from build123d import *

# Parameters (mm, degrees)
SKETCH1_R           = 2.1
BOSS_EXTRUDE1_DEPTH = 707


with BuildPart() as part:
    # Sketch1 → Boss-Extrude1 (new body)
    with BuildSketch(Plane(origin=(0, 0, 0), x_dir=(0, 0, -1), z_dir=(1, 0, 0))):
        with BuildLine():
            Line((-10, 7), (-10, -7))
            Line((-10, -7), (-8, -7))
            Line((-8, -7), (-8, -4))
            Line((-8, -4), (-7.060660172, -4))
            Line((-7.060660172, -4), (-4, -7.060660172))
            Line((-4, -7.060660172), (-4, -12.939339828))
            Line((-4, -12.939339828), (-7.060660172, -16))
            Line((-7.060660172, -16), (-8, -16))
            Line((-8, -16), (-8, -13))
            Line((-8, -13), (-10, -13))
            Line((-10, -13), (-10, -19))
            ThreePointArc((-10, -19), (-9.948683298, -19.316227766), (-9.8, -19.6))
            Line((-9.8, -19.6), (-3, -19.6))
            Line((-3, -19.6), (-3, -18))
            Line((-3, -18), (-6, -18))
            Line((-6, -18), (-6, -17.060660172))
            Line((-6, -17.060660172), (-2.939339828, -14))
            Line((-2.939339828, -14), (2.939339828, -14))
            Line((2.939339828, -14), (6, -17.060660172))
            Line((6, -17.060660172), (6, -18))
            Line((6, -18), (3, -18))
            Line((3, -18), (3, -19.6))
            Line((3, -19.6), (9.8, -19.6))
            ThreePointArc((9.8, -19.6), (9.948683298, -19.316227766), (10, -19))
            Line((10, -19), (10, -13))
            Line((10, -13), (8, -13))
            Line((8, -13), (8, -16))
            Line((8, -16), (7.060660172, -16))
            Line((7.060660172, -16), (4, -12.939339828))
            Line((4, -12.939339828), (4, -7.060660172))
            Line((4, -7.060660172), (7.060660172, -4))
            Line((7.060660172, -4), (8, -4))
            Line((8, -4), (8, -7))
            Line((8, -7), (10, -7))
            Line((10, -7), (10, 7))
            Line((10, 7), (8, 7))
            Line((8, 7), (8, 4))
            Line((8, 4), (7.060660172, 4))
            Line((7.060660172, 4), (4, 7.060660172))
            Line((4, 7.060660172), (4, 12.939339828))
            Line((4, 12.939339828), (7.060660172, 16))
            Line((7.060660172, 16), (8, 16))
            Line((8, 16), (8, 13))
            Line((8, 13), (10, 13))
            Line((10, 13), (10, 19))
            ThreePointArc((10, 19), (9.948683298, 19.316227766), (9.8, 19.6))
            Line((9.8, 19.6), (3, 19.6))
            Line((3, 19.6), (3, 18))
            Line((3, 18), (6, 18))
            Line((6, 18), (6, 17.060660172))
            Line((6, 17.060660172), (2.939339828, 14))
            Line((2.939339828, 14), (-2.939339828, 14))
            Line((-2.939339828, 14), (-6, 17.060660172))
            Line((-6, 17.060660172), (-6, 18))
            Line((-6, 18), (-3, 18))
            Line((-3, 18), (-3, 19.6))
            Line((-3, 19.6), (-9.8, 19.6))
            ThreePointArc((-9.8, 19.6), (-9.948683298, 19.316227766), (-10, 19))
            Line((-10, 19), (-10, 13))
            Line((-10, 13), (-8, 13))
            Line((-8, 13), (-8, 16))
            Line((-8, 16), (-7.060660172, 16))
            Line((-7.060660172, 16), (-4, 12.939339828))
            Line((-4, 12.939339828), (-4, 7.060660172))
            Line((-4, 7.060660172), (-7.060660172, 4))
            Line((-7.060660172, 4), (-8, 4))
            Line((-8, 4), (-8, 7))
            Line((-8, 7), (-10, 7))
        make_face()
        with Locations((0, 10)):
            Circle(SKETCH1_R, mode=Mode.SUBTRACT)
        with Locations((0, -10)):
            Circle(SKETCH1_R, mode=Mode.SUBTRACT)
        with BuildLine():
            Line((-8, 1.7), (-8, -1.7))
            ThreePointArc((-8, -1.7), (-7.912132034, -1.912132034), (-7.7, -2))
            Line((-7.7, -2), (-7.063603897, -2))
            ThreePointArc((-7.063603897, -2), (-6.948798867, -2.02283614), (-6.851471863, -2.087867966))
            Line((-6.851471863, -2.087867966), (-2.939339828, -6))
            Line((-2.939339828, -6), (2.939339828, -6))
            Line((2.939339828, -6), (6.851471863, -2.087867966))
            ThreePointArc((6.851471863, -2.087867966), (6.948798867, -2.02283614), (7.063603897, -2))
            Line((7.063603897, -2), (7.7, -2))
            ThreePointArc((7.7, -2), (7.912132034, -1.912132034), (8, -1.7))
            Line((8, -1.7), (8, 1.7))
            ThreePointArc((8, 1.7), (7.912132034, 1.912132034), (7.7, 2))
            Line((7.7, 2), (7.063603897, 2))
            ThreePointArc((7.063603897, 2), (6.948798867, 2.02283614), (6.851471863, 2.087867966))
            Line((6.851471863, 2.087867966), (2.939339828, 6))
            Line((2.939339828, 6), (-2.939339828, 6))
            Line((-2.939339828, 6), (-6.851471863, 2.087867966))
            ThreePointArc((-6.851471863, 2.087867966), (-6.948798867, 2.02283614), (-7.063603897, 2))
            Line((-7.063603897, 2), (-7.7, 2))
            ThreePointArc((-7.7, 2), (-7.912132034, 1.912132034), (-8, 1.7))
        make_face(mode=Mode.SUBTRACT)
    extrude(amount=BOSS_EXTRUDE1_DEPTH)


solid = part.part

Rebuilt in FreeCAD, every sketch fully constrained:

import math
import FreeCAD as App
import Part
import Sketcher
Q = App.Units.Quantity

doc = App.newDocument("Part")
body = doc.addObject("PartDesign::Body", "Body")

# Sketch on YZ plane
sketch1 = body.newObject("Sketcher::SketchObject", "Sketch")
sketch1.AttachmentSupport = (doc.getObject("YZ_Plane"), [""])
sketch1.MapMode = "FlatFace"
sketch1.addGeometry([
    Part.LineSegment(App.Vector(7, 10, 0), App.Vector(-7, 10, 0)),  # 0
    Part.LineSegment(App.Vector(-7, 10, 0), App.Vector(-7, 8, 0)),  # 1
    Part.LineSegment(App.Vector(-7, 8, 0), App.Vector(-4, 8, 0)),  # 2
    Part.LineSegment(App.Vector(-4, 8, 0), App.Vector(-4, 7.06066, 0)),  # 3
    Part.LineSegment(App.Vector(-4, 7.06066, 0), App.Vector(-7.06066, 4, 0)),  # 4
    Part.LineSegment(App.Vector(-7.06066, 4, 0), App.Vector(-12.93934, 4, 0)),  # 5
    Part.LineSegment(App.Vector(-12.93934, 4, 0), App.Vector(-16, 7.06066, 0)),  # 6
    Part.LineSegment(App.Vector(-16, 7.06066, 0), App.Vector(-16, 8, 0)),  # 7
    Part.LineSegment(App.Vector(-16, 8, 0), App.Vector(-13, 8, 0)),  # 8
    Part.LineSegment(App.Vector(-13, 8, 0), App.Vector(-13, 10, 0)),  # 9
    Part.LineSegment(App.Vector(-13, 10, 0), App.Vector(-19, 10, 0)),  # 10
    Part.ArcOfCircle(Part.Circle(App.Vector(-19, 9, 0), App.Vector(0, 0, 1), 1), math.radians(90), math.radians(126.869898)),  # 11
    Part.LineSegment(App.Vector(-19.6, 9.8, 0), App.Vector(-19.6, 3, 0)),  # 12
    Part.LineSegment(App.Vector(-19.6, 3, 0), App.Vector(-18, 3, 0)),  # 13
    Part.LineSegment(App.Vector(-18, 3, 0), App.Vector(-18, 6, 0)),  # 14
    Part.LineSegment(App.Vector(-18, 6, 0), App.Vector(-17.06066, 6, 0)),  # 15
    Part.LineSegment(App.Vector(-17.06066, 6, 0), App.Vector(-14, 2.93934, 0)),  # 16
    Part.LineSegment(App.Vector(-14, 2.93934, 0), App.Vector(-14, -2.93934, 0)),  # 17
    Part.LineSegment(App.Vector(-14, -2.93934, 0), App.Vector(-17.06066, -6, 0)),  # 18
    Part.LineSegment(App.Vector(-17.06066, -6, 0), App.Vector(-18, -6, 0)),  # 19
    Part.LineSegment(App.Vector(-18, -6, 0), App.Vector(-18, -3, 0)),  # 20
    Part.LineSegment(App.Vector(-18, -3, 0), App.Vector(-19.6, -3, 0)),  # 21
    Part.LineSegment(App.Vector(-19.6, -3, 0), App.Vector(-19.6, -9.8, 0)),  # 22
    Part.ArcOfCircle(Part.Circle(App.Vector(-19, -9, 0), App.Vector(0, 0, 1), 1), math.radians(-126.869898), math.radians(-90)),  # 23
    Part.LineSegment(App.Vector(-19, -10, 0), App.Vector(-13, -10, 0)),  # 24
    Part.LineSegment(App.Vector(-13, -10, 0), App.Vector(-13, -8, 0)),  # 25
    Part.LineSegment(App.Vector(-13, -8, 0), App.Vector(-16, -8, 0)),  # 26
    Part.LineSegment(App.Vector(-16, -8, 0), App.Vector(-16, -7.06066, 0)),  # 27
    Part.LineSegment(App.Vector(-16, -7.06066, 0), App.Vector(-12.93934, -4, 0)),  # 28
    Part.LineSegment(App.Vector(-12.93934, -4, 0), App.Vector(-7.06066, -4, 0)),  # 29
    Part.LineSegment(App.Vector(-7.06066, -4, 0), App.Vector(-4, -7.06066, 0)),  # 30
    Part.LineSegment(App.Vector(-4, -7.06066, 0), App.Vector(-4, -8, 0)),  # 31
    Part.LineSegment(App.Vector(-4, -8, 0), App.Vector(-7, -8, 0)),  # 32
    Part.LineSegment(App.Vector(-7, -8, 0), App.Vector(-7, -10, 0)),  # 33
    Part.LineSegment(App.Vector(-7, -10, 0), App.Vector(7, -10, 0)),  # 34
    Part.LineSegment(App.Vector(7, -10, 0), App.Vector(7, -8, 0)),  # 35
    Part.LineSegment(App.Vector(7, -8, 0), App.Vector(4, -8, 0)),  # 36
    Part.LineSegment(App.Vector(4, -8, 0), App.Vector(4, -7.06066, 0)),  # 37
    Part.LineSegment(App.Vector(4, -7.06066, 0), App.Vector(7.06066, -4, 0)),  # 38
    Part.LineSegment(App.Vector(7.06066, -4, 0), App.Vector(12.93934, -4, 0)),  # 39
    Part.LineSegment(App.Vector(12.93934, -4, 0), App.Vector(16, -7.06066, 0)),  # 40
    Part.LineSegment(App.Vector(16, -7.06066, 0), App.Vector(16, -8, 0)),  # 41
    Part.LineSegment(App.Vector(16, -8, 0), App.Vector(13, -8, 0)),  # 42
    Part.LineSegment(App.Vector(13, -8, 0), App.Vector(13, -10, 0)),  # 43
    Part.LineSegment(App.Vector(13, -10, 0), App.Vector(19, -10, 0)),  # 44
    Part.ArcOfCircle(Part.Circle(App.Vector(19, -9, 0), App.Vector(0, 0, 1), 1), math.radians(-90), math.radians(-53.130102)),  # 45
    Part.LineSegment(App.Vector(19.6, -9.8, 0), App.Vector(19.6, -3, 0)),  # 46
    Part.LineSegment(App.Vector(19.6, -3, 0), App.Vector(18, -3, 0)),  # 47
    Part.LineSegment(App.Vector(18, -3, 0), App.Vector(18, -6, 0)),  # 48
    Part.LineSegment(App.Vector(18, -6, 0), App.Vector(17.06066, -6, 0)),  # 49
    Part.LineSegment(App.Vector(17.06066, -6, 0), App.Vector(14, -2.93934, 0)),  # 50
    Part.LineSegment(App.Vector(14, -2.93934, 0), App.Vector(14, 2.93934, 0)),  # 51
    Part.LineSegment(App.Vector(14, 2.93934, 0), App.Vector(17.06066, 6, 0)),  # 52
    Part.LineSegment(App.Vector(17.06066, 6, 0), App.Vector(18, 6, 0)),  # 53
    Part.LineSegment(App.Vector(18, 6, 0), App.Vector(18, 3, 0)),  # 54
    Part.LineSegment(App.Vector(18, 3, 0), App.Vector(19.6, 3, 0)),  # 55
    Part.LineSegment(App.Vector(19.6, 3, 0), App.Vector(19.6, 9.8, 0)),  # 56
    Part.ArcOfCircle(Part.Circle(App.Vector(19, 9, 0), App.Vector(0, 0, 1), 1), math.radians(53.130102), math.radians(90)),  # 57
    Part.LineSegment(App.Vector(19, 10, 0), App.Vector(13, 10, 0)),  # 58
    Part.LineSegment(App.Vector(13, 10, 0), App.Vector(13, 8, 0)),  # 59
    Part.LineSegment(App.Vector(13, 8, 0), App.Vector(16, 8, 0)),  # 60
    Part.LineSegment(App.Vector(16, 8, 0), App.Vector(16, 7.06066, 0)),  # 61
    Part.LineSegment(App.Vector(16, 7.06066, 0), App.Vector(12.93934, 4, 0)),  # 62
    Part.LineSegment(App.Vector(12.93934, 4, 0), App.Vector(7.06066, 4, 0)),  # 63
    Part.LineSegment(App.Vector(7.06066, 4, 0), App.Vector(4, 7.06066, 0)),  # 64
    Part.LineSegment(App.Vector(4, 7.06066, 0), App.Vector(4, 8, 0)),  # 65
    Part.LineSegment(App.Vector(4, 8, 0), App.Vector(7, 8, 0)),  # 66
    Part.LineSegment(App.Vector(7, 8, 0), App.Vector(7, 10, 0)),  # 67
    Part.Circle(App.Vector(-10, 0, 0), App.Vector(0, 0, 1), 2.1),  # 68
    Part.LineSegment(App.Vector(-1.7, 8, 0), App.Vector(1.7, 8, 0)),  # 69
    Part.ArcOfCircle(Part.Circle(App.Vector(1.7, 7.7, 0), App.Vector(0, 0, 1), 0.3), math.radians(0), math.radians(90)),  # 70
    Part.LineSegment(App.Vector(2, 7.7, 0), App.Vector(2, 7.063604, 0)),  # 71
    Part.ArcOfCircle(Part.Circle(App.Vector(2.3, 7.063604, 0), App.Vector(0, 0, 1), 0.3), math.radians(180), math.radians(225.000001)),  # 72
    Part.LineSegment(App.Vector(2.087868, 6.851472, 0), App.Vector(6, 2.93934, 0)),  # 73
    Part.LineSegment(App.Vector(6, 2.93934, 0), App.Vector(6, -2.93934, 0)),  # 74
    Part.LineSegment(App.Vector(6, -2.93934, 0), App.Vector(2.087868, -6.851472, 0)),  # 75
    Part.ArcOfCircle(Part.Circle(App.Vector(2.3, -7.063604, 0), App.Vector(0, 0, 1), 0.3), math.radians(134.999999), math.radians(180)),  # 76
    Part.LineSegment(App.Vector(2, -7.063604, 0), App.Vector(2, -7.7, 0)),  # 77
    Part.ArcOfCircle(Part.Circle(App.Vector(1.7, -7.7, 0), App.Vector(0, 0, 1), 0.3), math.radians(-90), math.radians(0)),  # 78
    Part.LineSegment(App.Vector(1.7, -8, 0), App.Vector(-1.7, -8, 0)),  # 79
    Part.ArcOfCircle(Part.Circle(App.Vector(-1.7, -7.7, 0), App.Vector(0, 0, 1), 0.3), math.radians(-180), math.radians(-90)),  # 80
    Part.LineSegment(App.Vector(-2, -7.7, 0), App.Vector(-2, -7.063604, 0)),  # 81
    Part.ArcOfCircle(Part.Circle(App.Vector(-2.3, -7.063604, 0), App.Vector(0, 0, 1), 0.3), math.radians(0), math.radians(45.000001)),  # 82
    Part.LineSegment(App.Vector(-2.087868, -6.851472, 0), App.Vector(-6, -2.93934, 0)),  # 83
    Part.LineSegment(App.Vector(-6, -2.93934, 0), App.Vector(-6, 2.93934, 0)),  # 84
    Part.LineSegment(App.Vector(-6, 2.93934, 0), App.Vector(-2.087868, 6.851472, 0)),  # 85
    Part.ArcOfCircle(Part.Circle(App.Vector(-2.3, 7.063604, 0), App.Vector(0, 0, 1), 0.3), math.radians(-45.000001), math.radians(0)),  # 86
    Part.LineSegment(App.Vector(-2, 7.063604, 0), App.Vector(-2, 7.7, 0)),  # 87
    Part.ArcOfCircle(Part.Circle(App.Vector(-1.7, 7.7, 0), App.Vector(0, 0, 1), 0.3), math.radians(90), math.radians(180)),  # 88
    Part.Circle(App.Vector(10, 0, 0), App.Vector(0, 0, 1), 2.1),  # 89
], False)
sketch1.addConstraint([
    Sketcher.Constraint("Coincident", 0, 2, 1, 1),
    Sketcher.Constraint("Coincident", 1, 2, 2, 1),
    Sketcher.Constraint("Coincident", 2, 2, 3, 1),
    Sketcher.Constraint("Coincident", 3, 2, 4, 1),
    Sketcher.Constraint("Coincident", 4, 2, 5, 1),
    Sketcher.Constraint("Coincident", 5, 2, 6, 1),
    Sketcher.Constraint("Coincident", 6, 2, 7, 1),
    Sketcher.Constraint("Coincident", 7, 2, 8, 1),
    Sketcher.Constraint("Coincident", 8, 2, 9, 1),
    Sketcher.Constraint("Coincident", 9, 2, 10, 1),
    Sketcher.Constraint("Tangent", 10, 2, 11, 1),
    Sketcher.Constraint("Coincident", 11, 2, 12, 1),
    Sketcher.Constraint("Coincident", 12, 2, 13, 1),
    Sketcher.Constraint("Coincident", 13, 2, 14, 1),
    Sketcher.Constraint("Coincident", 14, 2, 15, 1),
    Sketcher.Constraint("Coincident", 15, 2, 16, 1),
    Sketcher.Constraint("Coincident", 16, 2, 17, 1),
    Sketcher.Constraint("Coincident", 17, 2, 18, 1),
    Sketcher.Constraint("Coincident", 18, 2, 19, 1),
    Sketcher.Constraint("Coincident", 19, 2, 20, 1),
    Sketcher.Constraint("Coincident", 20, 2, 21, 1),
    Sketcher.Constraint("Coincident", 21, 2, 22, 1),
    Sketcher.Constraint("Coincident", 22, 2, 23, 1),
    Sketcher.Constraint("Tangent", 23, 2, 24, 1),
    Sketcher.Constraint("Coincident", 24, 2, 25, 1),
    Sketcher.Constraint("Coincident", 25, 2, 26, 1),
    Sketcher.Constraint("Coincident", 26, 2, 27, 1),
    Sketcher.Constraint("Coincident", 27, 2, 28, 1),
    Sketcher.Constraint("Coincident", 28, 2, 29, 1),
    Sketcher.Constraint("Coincident", 29, 2, 30, 1),
    Sketcher.Constraint("Coincident", 30, 2, 31, 1),
    Sketcher.Constraint("Coincident", 31, 2, 32, 1),
    Sketcher.Constraint("Coincident", 32, 2, 33, 1),
    Sketcher.Constraint("Coincident", 33, 2, 34, 1),
    Sketcher.Constraint("Coincident", 34, 2, 35, 1),
    Sketcher.Constraint("Coincident", 35, 2, 36, 1),
    Sketcher.Constraint("Coincident", 36, 2, 37, 1),
    Sketcher.Constraint("Coincident", 37, 2, 38, 1),
    Sketcher.Constraint("Coincident", 38, 2, 39, 1),
    Sketcher.Constraint("Coincident", 39, 2, 40, 1),
    Sketcher.Constraint("Coincident", 40, 2, 41, 1),
    Sketcher.Constraint("Coincident", 41, 2, 42, 1),
    Sketcher.Constraint("Coincident", 42, 2, 43, 1),
    Sketcher.Constraint("Coincident", 43, 2, 44, 1),
    Sketcher.Constraint("Tangent", 44, 2, 45, 1),
    Sketcher.Constraint("Coincident", 45, 2, 46, 1),
    Sketcher.Constraint("Coincident", 46, 2, 47, 1),
    Sketcher.Constraint("Coincident", 47, 2, 48, 1),
    Sketcher.Constraint("Coincident", 48, 2, 49, 1),
    Sketcher.Constraint("Coincident", 49, 2, 50, 1),
    Sketcher.Constraint("Coincident", 50, 2, 51, 1),
    Sketcher.Constraint("Coincident", 51, 2, 52, 1),
    Sketcher.Constraint("Coincident", 52, 2, 53, 1),
    Sketcher.Constraint("Coincident", 53, 2, 54, 1),
    Sketcher.Constraint("Coincident", 54, 2, 55, 1),
    Sketcher.Constraint("Coincident", 55, 2, 56, 1),
    Sketcher.Constraint("Coincident", 56, 2, 57, 1),
    Sketcher.Constraint("Tangent", 57, 2, 58, 1),
    Sketcher.Constraint("Coincident", 58, 2, 59, 1),
    Sketcher.Constraint("Coincident", 59, 2, 60, 1),
    Sketcher.Constraint("Coincident", 60, 2, 61, 1),
    Sketcher.Constraint("Coincident", 61, 2, 62, 1),
    Sketcher.Constraint("Coincident", 62, 2, 63, 1),
    Sketcher.Constraint("Coincident", 63, 2, 64, 1),
    Sketcher.Constraint("Coincident", 64, 2, 65, 1),
    Sketcher.Constraint("Coincident", 65, 2, 66, 1),
    Sketcher.Constraint("Coincident", 66, 2, 67, 1),
    Sketcher.Constraint("Coincident", 67, 2, 0, 1),
    Sketcher.Constraint("Tangent", 69, 2, 70, 2),
    Sketcher.Constraint("Tangent", 70, 1, 71, 1),
    Sketcher.Constraint("Tangent", 71, 2, 72, 1),
    Sketcher.Constraint("Tangent", 72, 2, 73, 1),
    Sketcher.Constraint("Coincident", 73, 2, 74, 1),
    Sketcher.Constraint("Coincident", 74, 2, 75, 1),
    Sketcher.Constraint("Tangent", 75, 2, 76, 1),
    Sketcher.Constraint("Tangent", 76, 2, 77, 1),
    Sketcher.Constraint("Tangent", 77, 2, 78, 2),
    Sketcher.Constraint("Tangent", 78, 1, 79, 1),
    Sketcher.Constraint("Tangent", 79, 2, 80, 2),
    Sketcher.Constraint("Tangent", 80, 1, 81, 1),
    Sketcher.Constraint("Tangent", 81, 2, 82, 1),
    Sketcher.Constraint("Tangent", 82, 2, 83, 1),
    Sketcher.Constraint("Coincident", 83, 2, 84, 1),
    Sketcher.Constraint("Coincident", 84, 2, 85, 1),
    Sketcher.Constraint("Tangent", 85, 2, 86, 1),
    Sketcher.Constraint("Tangent", 86, 2, 87, 1),
    Sketcher.Constraint("Tangent", 87, 2, 88, 2),
    Sketcher.Constraint("Tangent", 88, 1, 69, 1),
    Sketcher.Constraint("Horizontal", 0),
    Sketcher.Constraint("Vertical", 1),
    Sketcher.Constraint("Horizontal", 2),
    Sketcher.Constraint("Vertical", 3),
    Sketcher.Constraint("Horizontal", 5),
    Sketcher.Constraint("Vertical", 7),
    Sketcher.Constraint("Horizontal", 8),
    Sketcher.Constraint("Vertical", 9),
    Sketcher.Constraint("Horizontal", 10),
    Sketcher.Constraint("Vertical", 12),
    Sketcher.Constraint("Horizontal", 13),
    Sketcher.Constraint("Vertical", 14),
    Sketcher.Constraint("Horizontal", 15),
    Sketcher.Constraint("Vertical", 17),
    Sketcher.Constraint("Horizontal", 19),
    Sketcher.Constraint("Vertical", 20),
    Sketcher.Constraint("Horizontal", 21),
    Sketcher.Constraint("Vertical", 22),
    Sketcher.Constraint("Horizontal", 24),
    Sketcher.Constraint("Vertical", 25),
    Sketcher.Constraint("Horizontal", 26),
    Sketcher.Constraint("Vertical", 27),
    Sketcher.Constraint("Horizontal", 29),
    Sketcher.Constraint("Vertical", 31),
    Sketcher.Constraint("Horizontal", 32),
    Sketcher.Constraint("Vertical", 33),
    Sketcher.Constraint("Horizontal", 34),
    Sketcher.Constraint("Vertical", 35),
    Sketcher.Constraint("Horizontal", 36),
    Sketcher.Constraint("Vertical", 37),
    Sketcher.Constraint("Horizontal", 39),
    Sketcher.Constraint("Vertical", 41),
    Sketcher.Constraint("Horizontal", 42),
    Sketcher.Constraint("Vertical", 43),
    Sketcher.Constraint("Horizontal", 44),
    Sketcher.Constraint("Vertical", 46),
    Sketcher.Constraint("Horizontal", 47),
    Sketcher.Constraint("Vertical", 48),
    Sketcher.Constraint("Horizontal", 49),
    Sketcher.Constraint("Vertical", 51),
    Sketcher.Constraint("Horizontal", 53),
    Sketcher.Constraint("Vertical", 54),
    Sketcher.Constraint("Horizontal", 55),
    Sketcher.Constraint("Vertical", 56),
    Sketcher.Constraint("Horizontal", 58),
    Sketcher.Constraint("Vertical", 59),
    Sketcher.Constraint("Horizontal", 60),
    Sketcher.Constraint("Vertical", 61),
    Sketcher.Constraint("Horizontal", 63),
    Sketcher.Constraint("Vertical", 65),
    Sketcher.Constraint("Horizontal", 66),
    Sketcher.Constraint("Vertical", 67),
    Sketcher.Constraint("Horizontal", 69),
    Sketcher.Constraint("Vertical", 71),
    Sketcher.Constraint("Vertical", 74),
    Sketcher.Constraint("Vertical", 77),
    Sketcher.Constraint("Horizontal", 79),
    Sketcher.Constraint("Vertical", 81),
    Sketcher.Constraint("Vertical", 84),
    Sketcher.Constraint("Vertical", 87),
    Sketcher.Constraint("Equal", 11, 23),
    Sketcher.Constraint("Equal", 23, 45),
    Sketcher.Constraint("Equal", 45, 57),
    Sketcher.Constraint("Equal", 70, 72),
    Sketcher.Constraint("Equal", 72, 76),
    Sketcher.Constraint("Equal", 76, 78),
    Sketcher.Constraint("Equal", 78, 80),
    Sketcher.Constraint("Equal", 80, 82),
    Sketcher.Constraint("Equal", 82, 86),
    Sketcher.Constraint("Equal", 86, 88),
    Sketcher.Constraint("Equal", 68, 89),
    Sketcher.Constraint("Symmetric", 11, 3, 45, 3, -1, 1),
    Sketcher.Constraint("Symmetric", 23, 3, 57, 3, -1, 1),
    Sketcher.Constraint("Symmetric", 70, 3, 80, 3, -1, 1),
    Sketcher.Constraint("Symmetric", 76, 3, 86, 3, -1, 1),
    Sketcher.Constraint("Symmetric", 68, 3, 89, 3, -1, 1),
    Sketcher.Constraint("Symmetric", 0, 2, 34, 2, -1, 1),
    Sketcher.Constraint("Symmetric", 2, 2, 36, 2, -1, 1),
    Sketcher.Constraint("Symmetric", 4, 2, 38, 2, -1, 1),
    Sketcher.Constraint("Symmetric", 6, 2, 40, 2, -1, 1),
    Sketcher.Constraint("Symmetric", 8, 2, 42, 2, -1, 1),
    Sketcher.Constraint("Symmetric", 12, 2, 46, 2, -1, 1),
    Sketcher.Constraint("Symmetric", 14, 2, 48, 2, -1, 1),
    Sketcher.Constraint("Symmetric", 16, 2, 50, 2, -1, 1),
    Sketcher.Constraint("Symmetric", 18, 2, 52, 2, -1, 1),
    Sketcher.Constraint("Symmetric", 20, 2, 54, 2, -1, 1),
    Sketcher.Constraint("Symmetric", 25, 2, 59, 2, -1, 1),
    Sketcher.Constraint("Symmetric", 27, 2, 61, 2, -1, 1),
    Sketcher.Constraint("Symmetric", 28, 2, 62, 2, -1, 1),
    Sketcher.Constraint("Symmetric", 30, 2, 64, 2, -1, 1),
    Sketcher.Constraint("Symmetric", 32, 2, 66, 2, -1, 1),
    Sketcher.Constraint("Symmetric", 72, 2, 82, 2, -1, 1),
    Sketcher.Constraint("Symmetric", 74, 2, 84, 2, -1, 1),
    Sketcher.Constraint("Symmetric", 23, 3, 45, 3, -2),
    Sketcher.Constraint("Symmetric", 76, 3, 82, 3, -2),
    Sketcher.Constraint("Symmetric", 32, 2, 35, 2, -2),
    Sketcher.Constraint("Symmetric", 30, 2, 37, 2, -2),
    Sketcher.Constraint("Symmetric", 29, 2, 38, 2, -2),
    Sketcher.Constraint("Symmetric", 27, 2, 40, 2, -2),
    Sketcher.Constraint("Symmetric", 25, 2, 42, 2, -2),
    Sketcher.Constraint("Symmetric", 21, 2, 46, 2, -2),
    Sketcher.Constraint("Symmetric", 19, 2, 48, 2, -2),
    Sketcher.Constraint("PointOnObject", 68, 3, -1),
    Sketcher.Constraint("Perpendicular", 4, 6),
    Sketcher.Constraint("Parallel", 6, 16),
    Sketcher.Constraint("Perpendicular", 16, 18),
    Sketcher.Constraint("Parallel", 18, 28),
    Sketcher.Constraint("Perpendicular", 28, 30),
    Sketcher.Constraint("Perpendicular", 30, 38),
    Sketcher.Constraint("Perpendicular", 38, 40),
    Sketcher.Constraint("Parallel", 40, 50),
    Sketcher.Constraint("Perpendicular", 50, 52),
    Sketcher.Constraint("Perpendicular", 62, 64),
    Sketcher.Constraint("Parallel", 64, 73),
    Sketcher.Constraint("Perpendicular", 73, 75),
    Sketcher.Constraint("Horizontal", 3, 2, 6, 2),
    Sketcher.Constraint("Horizontal", 2, 2, 7, 2),
    Sketcher.Constraint("Horizontal", 0, 2, 9, 2),
    Sketcher.Constraint("Horizontal", 17, 2, 50, 2),
    Sketcher.Constraint("Horizontal", 11, 2, 56, 2),
    Sketcher.Constraint("Horizontal", 66, 2, 69, 2),
    Sketcher.Constraint("Horizontal", 51, 2, 73, 2),
    Sketcher.Constraint("Equal", 2, 8),
    Sketcher.Constraint("Equal", 53, 3),
    Sketcher.Constraint("Equal", 66, 14),
    Sketcher.Constraint("Equal", 63, 17),
    Sketcher.Constraint("Equal", 6, 16),
    Sketcher.Constraint("Radius", 11, Q("1 mm")),
    Sketcher.Constraint("Diameter", 68, Q("4.2 mm")),
    Sketcher.Constraint("Radius", 70, Q("0.3 mm")),
    Sketcher.Constraint("DistanceX", 0, 2, 0, 1, Q("14 mm")),
    Sketcher.Constraint("DistanceX", 2, 1, 2, 2, Q("3 mm")),
    Sketcher.Constraint("DistanceX", 10, 2, 10, 1, Q("6 mm")),
    Sketcher.Constraint("DistanceY", 1, 2, 1, 1, Q("2 mm")),
    Sketcher.Constraint("DistanceX", 13, 1, 13, 2, Q("1.6 mm")),
    Sketcher.Constraint("DistanceX", 69, 1, 69, 2, Q("3.4 mm")),
    Sketcher.Constraint("DistanceY", 12, 2, 12, 1, Q("6.8 mm")),
    Sketcher.Constraint("DistanceX", 11, 3, -1, 1, Q("19 mm")),
    Sketcher.Constraint("DistanceY", -1, 1, 11, 3, Q("9 mm")),
    Sketcher.Constraint("DistanceX", 68, 3, -1, 1, Q("10 mm")),
    Sketcher.Constraint("DistanceY", -1, 1, 4, 2, Q("4 mm")),
    Sketcher.Constraint("DistanceX", -1, 1, 73, 2, Q("6 mm")),
    Sketcher.Constraint("DistanceX", 5, 2, 5, 1, Q("5.87868 mm")),
])
pad1 = body.newObject("PartDesign::Pad", "Pad")
pad1.Profile = sketch1
pad1.Length = 707

doc.recompute()
